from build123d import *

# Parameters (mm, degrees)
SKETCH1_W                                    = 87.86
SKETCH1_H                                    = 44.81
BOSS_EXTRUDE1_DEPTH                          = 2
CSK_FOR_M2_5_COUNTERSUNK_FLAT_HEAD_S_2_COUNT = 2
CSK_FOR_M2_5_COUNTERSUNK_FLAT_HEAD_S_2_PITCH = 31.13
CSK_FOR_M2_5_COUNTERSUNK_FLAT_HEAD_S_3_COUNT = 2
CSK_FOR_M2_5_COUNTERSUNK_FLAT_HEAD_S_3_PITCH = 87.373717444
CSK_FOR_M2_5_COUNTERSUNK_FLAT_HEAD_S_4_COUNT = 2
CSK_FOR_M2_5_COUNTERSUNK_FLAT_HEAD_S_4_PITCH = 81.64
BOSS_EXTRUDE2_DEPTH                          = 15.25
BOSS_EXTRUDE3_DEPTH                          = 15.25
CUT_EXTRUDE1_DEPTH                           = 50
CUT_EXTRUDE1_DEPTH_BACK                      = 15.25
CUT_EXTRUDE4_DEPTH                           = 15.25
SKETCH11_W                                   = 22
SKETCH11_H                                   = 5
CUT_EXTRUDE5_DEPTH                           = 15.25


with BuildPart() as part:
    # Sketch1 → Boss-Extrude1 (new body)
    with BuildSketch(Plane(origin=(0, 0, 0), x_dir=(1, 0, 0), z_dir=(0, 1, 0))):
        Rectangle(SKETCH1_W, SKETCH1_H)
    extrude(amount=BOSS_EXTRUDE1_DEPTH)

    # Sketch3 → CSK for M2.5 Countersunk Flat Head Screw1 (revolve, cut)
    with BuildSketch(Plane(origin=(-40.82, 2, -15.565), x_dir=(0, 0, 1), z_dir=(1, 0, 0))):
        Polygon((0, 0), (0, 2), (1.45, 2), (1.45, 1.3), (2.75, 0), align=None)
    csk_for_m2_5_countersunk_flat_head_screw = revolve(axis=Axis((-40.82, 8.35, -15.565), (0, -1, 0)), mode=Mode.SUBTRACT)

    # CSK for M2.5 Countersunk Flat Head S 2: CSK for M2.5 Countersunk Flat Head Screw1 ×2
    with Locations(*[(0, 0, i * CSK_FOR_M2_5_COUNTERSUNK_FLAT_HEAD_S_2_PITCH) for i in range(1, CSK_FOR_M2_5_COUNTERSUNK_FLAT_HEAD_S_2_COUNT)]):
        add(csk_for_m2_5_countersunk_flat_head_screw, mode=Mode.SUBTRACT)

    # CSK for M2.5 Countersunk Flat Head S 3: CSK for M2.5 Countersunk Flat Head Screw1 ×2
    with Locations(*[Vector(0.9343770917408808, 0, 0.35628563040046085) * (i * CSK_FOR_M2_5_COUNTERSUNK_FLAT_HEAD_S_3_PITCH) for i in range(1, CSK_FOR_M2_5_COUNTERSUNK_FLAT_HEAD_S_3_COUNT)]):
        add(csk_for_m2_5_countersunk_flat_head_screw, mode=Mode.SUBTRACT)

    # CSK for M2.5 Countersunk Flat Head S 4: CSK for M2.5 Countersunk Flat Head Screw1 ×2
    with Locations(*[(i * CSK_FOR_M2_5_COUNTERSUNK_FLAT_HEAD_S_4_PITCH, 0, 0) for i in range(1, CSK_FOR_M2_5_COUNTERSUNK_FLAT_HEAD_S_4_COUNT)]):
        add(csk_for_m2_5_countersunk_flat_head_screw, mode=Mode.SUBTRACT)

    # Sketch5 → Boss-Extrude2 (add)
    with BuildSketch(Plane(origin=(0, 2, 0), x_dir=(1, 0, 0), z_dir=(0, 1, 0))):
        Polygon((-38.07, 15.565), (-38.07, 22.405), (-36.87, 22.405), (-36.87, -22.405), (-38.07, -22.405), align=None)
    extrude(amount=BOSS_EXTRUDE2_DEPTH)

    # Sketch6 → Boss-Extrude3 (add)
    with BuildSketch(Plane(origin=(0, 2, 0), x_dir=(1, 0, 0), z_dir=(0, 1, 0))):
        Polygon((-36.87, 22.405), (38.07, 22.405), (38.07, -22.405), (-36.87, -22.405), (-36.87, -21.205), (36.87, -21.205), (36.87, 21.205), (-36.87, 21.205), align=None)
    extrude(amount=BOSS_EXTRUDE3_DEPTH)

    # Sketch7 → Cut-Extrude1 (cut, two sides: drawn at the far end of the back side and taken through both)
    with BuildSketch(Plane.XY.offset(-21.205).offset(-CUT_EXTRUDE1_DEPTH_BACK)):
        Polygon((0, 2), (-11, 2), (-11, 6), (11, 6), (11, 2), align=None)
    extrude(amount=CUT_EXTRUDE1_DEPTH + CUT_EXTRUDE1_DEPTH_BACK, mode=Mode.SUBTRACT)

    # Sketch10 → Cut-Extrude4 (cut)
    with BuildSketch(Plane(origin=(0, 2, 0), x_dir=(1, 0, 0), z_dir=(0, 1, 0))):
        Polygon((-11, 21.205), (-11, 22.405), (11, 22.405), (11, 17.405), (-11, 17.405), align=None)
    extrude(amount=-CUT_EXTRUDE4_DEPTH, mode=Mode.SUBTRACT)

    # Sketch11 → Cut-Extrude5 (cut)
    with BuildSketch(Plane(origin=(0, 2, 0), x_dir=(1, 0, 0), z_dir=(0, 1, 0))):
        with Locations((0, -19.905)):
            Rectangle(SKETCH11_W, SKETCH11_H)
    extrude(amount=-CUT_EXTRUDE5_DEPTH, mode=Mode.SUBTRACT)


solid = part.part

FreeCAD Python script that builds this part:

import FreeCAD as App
import Part
import Sketcher

V = App.Vector
Q = App.Units.Quantity


def add_polygon(sketch, points):
    """Adds a closed chain of lines whose ends are joined by coincident constraints."""
    first, n = sketch.GeometryCount, len(points)
    for a, b in zip(points, points[1:] + points[:1]):
        sketch.addGeometry(Part.LineSegment(App.Vector(*a, 0), App.Vector(*b, 0)), False)
    for i in range(n):
        sketch.addConstraint(Sketcher.Constraint("Coincident", first + i, 2, first + (i + 1) % n, 1))

doc = App.newDocument("Part")
body = doc.addObject("PartDesign::Body", "Body")

# Sketch on XZ plane
sketch1 = body.newObject("Sketcher::SketchObject", "Sketch")
sketch1.AttachmentSupport = (doc.getObject("XZ_Plane"), [""])
sketch1.MapMode = "FlatFace"
add_polygon(sketch1, [(-44, -22), (-44, 22), (44, 22), (44, -22)])  # lines 0-3
sketch1.addConstraint([
    Sketcher.Constraint("Vertical", 0),
    Sketcher.Constraint("Horizontal", 1),
    Sketcher.Constraint("Vertical", 2),
    Sketcher.Constraint("Horizontal", 3),
    Sketcher.Constraint("Symmetric", 0, 2, 2, 2, -1, 1),
    Sketcher.Constraint("DistanceX", 1, 1, 1, 2, 87.86),
    Sketcher.Constraint("DistanceY", 0, 1, 0, 2, 44.81),
])
pad1 = body.newObject("PartDesign::Pad", "Pad")
pad1.Profile = sketch1
pad1.Length = 2
pad1.Reversed = True

# Sketch on YZ plane
sketch2 = body.newObject("Sketcher::SketchObject", "Sketch001")
sketch2.AttachmentSupport = (doc.getObject("YZ_Plane"), [""])
sketch2.MapMode = "FlatFace"
sketch2.AttachmentOffset = App.Placement(V(0, 0, -40.82), App.Rotation())
add_polygon(sketch2, [(0, -15.6), (2, -15.6), (2, -12.8), (0.7, -14.1), (0, -14.1)])  # lines 0-4
sketch2.addGeometry(Part.LineSegment(V(2, -15.6, 0), V(0, -15.6, 0)), True)  # axis
sketch2.addConstraint([
    Sketcher.Constraint("Horizontal", 0),
    Sketcher.Constraint("Vertical", 1),
    Sketcher.Constraint("Horizontal", 3),
    Sketcher.Constraint("Vertical", 4),
    Sketcher.Constraint("Horizontal", 5),
    Sketcher.Constraint("Coincident", 5, 1, 0, 2),
    Sketcher.Constraint("PointOnObject", 3, 2, -2),
    Sketcher.Constraint("PointOnObject", 5, 2, -2),
    Sketcher.Constraint("DistanceX", 0, 1, 0, 2, 2.0),
    Sketcher.Constraint("Angle", 2, Q("-135 deg")),
    Sketcher.Constraint("DistanceX", 3, 2, 3, 1, 0.7),
    Sketcher.Constraint("DistanceY", 1, 1, 1, 2, 2.75),
    Sketcher.Constraint("DistanceY", 0, 2, -1, 1, 15.565),
])
groove = body.newObject("PartDesign::Groove", "Groove")
groove.Profile = sketch2
groove.ReferenceAxis = (sketch2, ["Axis0"])
groove.Angle = 360
doc.recompute()

linearpattern = body.newObject("PartDesign::LinearPattern", "LinearPattern")
linearpattern.Originals = [groove]
linearpattern.Direction = (doc.getObject("Z_Axis"), [""])
linearpattern.Mode = "offset"
linearpattern.Offset = 31.13
linearpattern.Occurrences = 2
body.Tip = linearpattern
doc.recompute()

datumline = body.newObject("PartDesign::Line", "DatumLine")
datumline.Placement = App.Placement(V(0, 0, 0), App.Rotation(V(0, 0, 1), V(0.934377092, 0, 0.35628563)))
linearpattern2 = body.newObject("PartDesign::LinearPattern", "LinearPattern001")
linearpattern2.Originals = [groove]
linearpattern2.Direction = (datumline, [""])
linearpattern2.Mode = "offset"
linearpattern2.Offset = 87.373717
linearpattern2.Occurrences = 2
body.Tip = linearpattern2
doc.recompute()

linearpattern3 = body.newObject("PartDesign::LinearPattern", "LinearPattern002")
linearpattern3.Originals = [groove]
linearpattern3.Direction = (doc.getObject("X_Axis"), [""])
linearpattern3.Mode = "offset"
linearpattern3.Offset = 81.64
linearpattern3.Occurrences = 2
body.Tip = linearpattern3

# Sketch on XZ plane
sketch3 = body.newObject("Sketcher::SketchObject", "Sketch002")
sketch3.AttachmentSupport = (doc.getObject("XZ_Plane"), [""])
sketch3.MapMode = "FlatFace"
sketch3.AttachmentOffset = App.Placement(V(0, 0, -2), App.Rotation())
add_polygon(sketch3, [(-38.1, -22.4), (-38.1, 22.4), (-36.9, 22.4), (-36.9, -22.4)])  # lines 0-3
sketch3.addConstraint([
    Sketcher.Constraint("Vertical", 0),
    Sketcher.Constraint("Horizontal", 1),
    Sketcher.Constraint("Vertical", 2),
    Sketcher.Constraint("Horizontal", 3),
    Sketcher.Constraint("DistanceX", 1, 1, 1, 2, 1.2),
    Sketcher.Constraint("DistanceY", 0, 1, 0, 2, 44.81),
    Sketcher.Constraint("DistanceX", 0, 2, -1, 1, 38.07),
    Sketcher.Constraint("DistanceY", -1, 1, 0, 2, 22.405),
])
pad2 = body.newObject("PartDesign::Pad", "Pad001")
pad2.Profile = sketch3
pad2.Length = 15.25
pad2.Reversed = True

# Sketch on XZ plane
sketch4 = body.newObject("Sketcher::SketchObject", "Sketch003")
sketch4.AttachmentSupport = (doc.getObject("XZ_Plane"), [""])
sketch4.MapMode = "FlatFace"
sketch4.AttachmentOffset = App.Placement(V(0, 0, -2), App.Rotation())
add_polygon(sketch4, [(38.1, -22.4), (-36.9, -22.4), (-36.9, -21.2), (36.9, -21.2), (36.9, 21.2), (-36.9, 21.2), (-36.9, 22.4), (38.1, 22.4)])  # lines 0-7
sketch4.addConstraint([
    Sketcher.Constraint("Horizontal", 0),
    Sketcher.Constraint("Vertical", 1),
    Sketcher.Constraint("Horizontal", 2),
    Sketcher.Constraint("Vertical", 3),
    Sketcher.Constraint("Horizontal", 4),
    Sketcher.Constraint("Vertical", 5),
    Sketcher.Constraint("Horizontal", 6),
    Sketcher.Constraint("Vertical", 7),
    Sketcher.Constraint("Symmetric", 1, 2, 3, 2, -1, 1),
    Sketcher.Constraint("Symmetric", 0, 2, 5, 2, -1),
    Sketcher.Constraint("DistanceY", 1, 1, 1, 2, 1.2),
    Sketcher.Constraint("DistanceX", 0, 2, 0, 1, 74.94),
    Sketcher.Constraint("DistanceX", 2, 1, 2, 2, 73.74),
    Sketcher.Constraint("DistanceY", 3, 1, 3, 2, 42.41),
])
pad3 = body.newObject("PartDesign::Pad", "Pad002")
pad3.Profile = sketch4
pad3.Length = 15.25
pad3.Reversed = True

# Sketch on XY plane
sketch5 = body.newObject("Sketcher::SketchObject", "Sketch004")
sketch5.AttachmentSupport = (doc.getObject("XY_Plane"), [""])
sketch5.MapMode = "FlatFace"
sketch5.AttachmentOffset = App.Placement(V(0, 0, -21.205), App.Rotation())
add_polygon(sketch5, [(-11, 2), (11, 2), (11, 6), (-11, 6)])  # lines 0-3
sketch5.addConstraint([
    Sketcher.Constraint("Horizontal", 0),
    Sketcher.Constraint("Vertical", 1),
    Sketcher.Constraint("Horizontal", 2),
    Sketcher.Constraint("Vertical", 3),
    Sketcher.Constraint("DistanceX", 0, 1, 0, 2, 22.0),
    Sketcher.Constraint("DistanceY", 1, 1, 1, 2, 4.0),
    Sketcher.Constraint("DistanceX", -1, 1, 0, 2, 11.0),
    Sketcher.Constraint("DistanceY", -1, 1, 0, 2, 2.0),
])
pocket1 = body.newObject("PartDesign::Pocket", "Pocket")
pocket1.Profile = sketch5
pocket1.Type = "ThroughAll"
pocket1.Midplane = True

# Sketch on XZ plane
sketch6 = body.newObject("Sketcher::SketchObject", "Sketch005")
sketch6.AttachmentSupport = (doc.getObject("XZ_Plane"), [""])
sketch6.MapMode = "FlatFace"
sketch6.AttachmentOffset = App.Placement(V(0, 0, -2), App.Rotation())
add_polygon(sketch6, [(-11, -22), (-11, -17), (11, -17), (11, -22)])  # lines 0-3
sketch6.addConstraint([
    Sketcher.Constraint("Vertical", 0),
    Sketcher.Constraint("Horizontal", 1),
    Sketcher.Constraint("Vertical", 2),
    Sketcher.Constraint("Horizontal", 3),
    Sketcher.Constraint("DistanceX", 1, 1, 1, 2, 22.0),
    Sketcher.Constraint("DistanceY", 0, 1, 0, 2, 5.0),
    Sketcher.Constraint("DistanceX", 0, 2, -1, 1, 11.0),
    Sketcher.Constraint("DistanceY", 0, 2, -1, 1, 17.405),
])
pocket2 = body.newObject("PartDesign::Pocket", "Pocket001")
pocket2.Profile = sketch6
pocket2.Length = 15.25
pocket2.Reversed = True

# Sketch on XZ plane
sketch7 = body.newObject("Sketcher::SketchObject", "Sketch006")
sketch7.AttachmentSupport = (doc.getObject("XZ_Plane"), [""])
sketch7.MapMode = "FlatFace"
sketch7.AttachmentOffset = App.Placement(V(0, 0, -2), App.Rotation())
add_polygon(sketch7, [(-11, 17), (-11, 22), (11, 22), (11, 17)])  # lines 0-3
sketch7.addConstraint([
    Sketcher.Constraint("Vertical", 0),
    Sketcher.Constraint("Horizontal", 1),
    Sketcher.Constraint("Vertical", 2),
    Sketcher.Constraint("Horizontal", 3),
    Sketcher.Constraint("DistanceX", 1, 1, 1, 2, 22.0),
    Sketcher.Constraint("DistanceY", 0, 1, 0, 2, 5.0),
    Sketcher.Constraint("DistanceX", 0, 2, -1, 1, 11.0),
    Sketcher.Constraint("DistanceY", -1, 1, 0, 2, 22.405),
])
pocket3 = body.newObject("PartDesign::Pocket", "Pocket002")
pocket3.Profile = sketch7
pocket3.Length = 15.25
pocket3.Reversed = True

doc.recompute()
